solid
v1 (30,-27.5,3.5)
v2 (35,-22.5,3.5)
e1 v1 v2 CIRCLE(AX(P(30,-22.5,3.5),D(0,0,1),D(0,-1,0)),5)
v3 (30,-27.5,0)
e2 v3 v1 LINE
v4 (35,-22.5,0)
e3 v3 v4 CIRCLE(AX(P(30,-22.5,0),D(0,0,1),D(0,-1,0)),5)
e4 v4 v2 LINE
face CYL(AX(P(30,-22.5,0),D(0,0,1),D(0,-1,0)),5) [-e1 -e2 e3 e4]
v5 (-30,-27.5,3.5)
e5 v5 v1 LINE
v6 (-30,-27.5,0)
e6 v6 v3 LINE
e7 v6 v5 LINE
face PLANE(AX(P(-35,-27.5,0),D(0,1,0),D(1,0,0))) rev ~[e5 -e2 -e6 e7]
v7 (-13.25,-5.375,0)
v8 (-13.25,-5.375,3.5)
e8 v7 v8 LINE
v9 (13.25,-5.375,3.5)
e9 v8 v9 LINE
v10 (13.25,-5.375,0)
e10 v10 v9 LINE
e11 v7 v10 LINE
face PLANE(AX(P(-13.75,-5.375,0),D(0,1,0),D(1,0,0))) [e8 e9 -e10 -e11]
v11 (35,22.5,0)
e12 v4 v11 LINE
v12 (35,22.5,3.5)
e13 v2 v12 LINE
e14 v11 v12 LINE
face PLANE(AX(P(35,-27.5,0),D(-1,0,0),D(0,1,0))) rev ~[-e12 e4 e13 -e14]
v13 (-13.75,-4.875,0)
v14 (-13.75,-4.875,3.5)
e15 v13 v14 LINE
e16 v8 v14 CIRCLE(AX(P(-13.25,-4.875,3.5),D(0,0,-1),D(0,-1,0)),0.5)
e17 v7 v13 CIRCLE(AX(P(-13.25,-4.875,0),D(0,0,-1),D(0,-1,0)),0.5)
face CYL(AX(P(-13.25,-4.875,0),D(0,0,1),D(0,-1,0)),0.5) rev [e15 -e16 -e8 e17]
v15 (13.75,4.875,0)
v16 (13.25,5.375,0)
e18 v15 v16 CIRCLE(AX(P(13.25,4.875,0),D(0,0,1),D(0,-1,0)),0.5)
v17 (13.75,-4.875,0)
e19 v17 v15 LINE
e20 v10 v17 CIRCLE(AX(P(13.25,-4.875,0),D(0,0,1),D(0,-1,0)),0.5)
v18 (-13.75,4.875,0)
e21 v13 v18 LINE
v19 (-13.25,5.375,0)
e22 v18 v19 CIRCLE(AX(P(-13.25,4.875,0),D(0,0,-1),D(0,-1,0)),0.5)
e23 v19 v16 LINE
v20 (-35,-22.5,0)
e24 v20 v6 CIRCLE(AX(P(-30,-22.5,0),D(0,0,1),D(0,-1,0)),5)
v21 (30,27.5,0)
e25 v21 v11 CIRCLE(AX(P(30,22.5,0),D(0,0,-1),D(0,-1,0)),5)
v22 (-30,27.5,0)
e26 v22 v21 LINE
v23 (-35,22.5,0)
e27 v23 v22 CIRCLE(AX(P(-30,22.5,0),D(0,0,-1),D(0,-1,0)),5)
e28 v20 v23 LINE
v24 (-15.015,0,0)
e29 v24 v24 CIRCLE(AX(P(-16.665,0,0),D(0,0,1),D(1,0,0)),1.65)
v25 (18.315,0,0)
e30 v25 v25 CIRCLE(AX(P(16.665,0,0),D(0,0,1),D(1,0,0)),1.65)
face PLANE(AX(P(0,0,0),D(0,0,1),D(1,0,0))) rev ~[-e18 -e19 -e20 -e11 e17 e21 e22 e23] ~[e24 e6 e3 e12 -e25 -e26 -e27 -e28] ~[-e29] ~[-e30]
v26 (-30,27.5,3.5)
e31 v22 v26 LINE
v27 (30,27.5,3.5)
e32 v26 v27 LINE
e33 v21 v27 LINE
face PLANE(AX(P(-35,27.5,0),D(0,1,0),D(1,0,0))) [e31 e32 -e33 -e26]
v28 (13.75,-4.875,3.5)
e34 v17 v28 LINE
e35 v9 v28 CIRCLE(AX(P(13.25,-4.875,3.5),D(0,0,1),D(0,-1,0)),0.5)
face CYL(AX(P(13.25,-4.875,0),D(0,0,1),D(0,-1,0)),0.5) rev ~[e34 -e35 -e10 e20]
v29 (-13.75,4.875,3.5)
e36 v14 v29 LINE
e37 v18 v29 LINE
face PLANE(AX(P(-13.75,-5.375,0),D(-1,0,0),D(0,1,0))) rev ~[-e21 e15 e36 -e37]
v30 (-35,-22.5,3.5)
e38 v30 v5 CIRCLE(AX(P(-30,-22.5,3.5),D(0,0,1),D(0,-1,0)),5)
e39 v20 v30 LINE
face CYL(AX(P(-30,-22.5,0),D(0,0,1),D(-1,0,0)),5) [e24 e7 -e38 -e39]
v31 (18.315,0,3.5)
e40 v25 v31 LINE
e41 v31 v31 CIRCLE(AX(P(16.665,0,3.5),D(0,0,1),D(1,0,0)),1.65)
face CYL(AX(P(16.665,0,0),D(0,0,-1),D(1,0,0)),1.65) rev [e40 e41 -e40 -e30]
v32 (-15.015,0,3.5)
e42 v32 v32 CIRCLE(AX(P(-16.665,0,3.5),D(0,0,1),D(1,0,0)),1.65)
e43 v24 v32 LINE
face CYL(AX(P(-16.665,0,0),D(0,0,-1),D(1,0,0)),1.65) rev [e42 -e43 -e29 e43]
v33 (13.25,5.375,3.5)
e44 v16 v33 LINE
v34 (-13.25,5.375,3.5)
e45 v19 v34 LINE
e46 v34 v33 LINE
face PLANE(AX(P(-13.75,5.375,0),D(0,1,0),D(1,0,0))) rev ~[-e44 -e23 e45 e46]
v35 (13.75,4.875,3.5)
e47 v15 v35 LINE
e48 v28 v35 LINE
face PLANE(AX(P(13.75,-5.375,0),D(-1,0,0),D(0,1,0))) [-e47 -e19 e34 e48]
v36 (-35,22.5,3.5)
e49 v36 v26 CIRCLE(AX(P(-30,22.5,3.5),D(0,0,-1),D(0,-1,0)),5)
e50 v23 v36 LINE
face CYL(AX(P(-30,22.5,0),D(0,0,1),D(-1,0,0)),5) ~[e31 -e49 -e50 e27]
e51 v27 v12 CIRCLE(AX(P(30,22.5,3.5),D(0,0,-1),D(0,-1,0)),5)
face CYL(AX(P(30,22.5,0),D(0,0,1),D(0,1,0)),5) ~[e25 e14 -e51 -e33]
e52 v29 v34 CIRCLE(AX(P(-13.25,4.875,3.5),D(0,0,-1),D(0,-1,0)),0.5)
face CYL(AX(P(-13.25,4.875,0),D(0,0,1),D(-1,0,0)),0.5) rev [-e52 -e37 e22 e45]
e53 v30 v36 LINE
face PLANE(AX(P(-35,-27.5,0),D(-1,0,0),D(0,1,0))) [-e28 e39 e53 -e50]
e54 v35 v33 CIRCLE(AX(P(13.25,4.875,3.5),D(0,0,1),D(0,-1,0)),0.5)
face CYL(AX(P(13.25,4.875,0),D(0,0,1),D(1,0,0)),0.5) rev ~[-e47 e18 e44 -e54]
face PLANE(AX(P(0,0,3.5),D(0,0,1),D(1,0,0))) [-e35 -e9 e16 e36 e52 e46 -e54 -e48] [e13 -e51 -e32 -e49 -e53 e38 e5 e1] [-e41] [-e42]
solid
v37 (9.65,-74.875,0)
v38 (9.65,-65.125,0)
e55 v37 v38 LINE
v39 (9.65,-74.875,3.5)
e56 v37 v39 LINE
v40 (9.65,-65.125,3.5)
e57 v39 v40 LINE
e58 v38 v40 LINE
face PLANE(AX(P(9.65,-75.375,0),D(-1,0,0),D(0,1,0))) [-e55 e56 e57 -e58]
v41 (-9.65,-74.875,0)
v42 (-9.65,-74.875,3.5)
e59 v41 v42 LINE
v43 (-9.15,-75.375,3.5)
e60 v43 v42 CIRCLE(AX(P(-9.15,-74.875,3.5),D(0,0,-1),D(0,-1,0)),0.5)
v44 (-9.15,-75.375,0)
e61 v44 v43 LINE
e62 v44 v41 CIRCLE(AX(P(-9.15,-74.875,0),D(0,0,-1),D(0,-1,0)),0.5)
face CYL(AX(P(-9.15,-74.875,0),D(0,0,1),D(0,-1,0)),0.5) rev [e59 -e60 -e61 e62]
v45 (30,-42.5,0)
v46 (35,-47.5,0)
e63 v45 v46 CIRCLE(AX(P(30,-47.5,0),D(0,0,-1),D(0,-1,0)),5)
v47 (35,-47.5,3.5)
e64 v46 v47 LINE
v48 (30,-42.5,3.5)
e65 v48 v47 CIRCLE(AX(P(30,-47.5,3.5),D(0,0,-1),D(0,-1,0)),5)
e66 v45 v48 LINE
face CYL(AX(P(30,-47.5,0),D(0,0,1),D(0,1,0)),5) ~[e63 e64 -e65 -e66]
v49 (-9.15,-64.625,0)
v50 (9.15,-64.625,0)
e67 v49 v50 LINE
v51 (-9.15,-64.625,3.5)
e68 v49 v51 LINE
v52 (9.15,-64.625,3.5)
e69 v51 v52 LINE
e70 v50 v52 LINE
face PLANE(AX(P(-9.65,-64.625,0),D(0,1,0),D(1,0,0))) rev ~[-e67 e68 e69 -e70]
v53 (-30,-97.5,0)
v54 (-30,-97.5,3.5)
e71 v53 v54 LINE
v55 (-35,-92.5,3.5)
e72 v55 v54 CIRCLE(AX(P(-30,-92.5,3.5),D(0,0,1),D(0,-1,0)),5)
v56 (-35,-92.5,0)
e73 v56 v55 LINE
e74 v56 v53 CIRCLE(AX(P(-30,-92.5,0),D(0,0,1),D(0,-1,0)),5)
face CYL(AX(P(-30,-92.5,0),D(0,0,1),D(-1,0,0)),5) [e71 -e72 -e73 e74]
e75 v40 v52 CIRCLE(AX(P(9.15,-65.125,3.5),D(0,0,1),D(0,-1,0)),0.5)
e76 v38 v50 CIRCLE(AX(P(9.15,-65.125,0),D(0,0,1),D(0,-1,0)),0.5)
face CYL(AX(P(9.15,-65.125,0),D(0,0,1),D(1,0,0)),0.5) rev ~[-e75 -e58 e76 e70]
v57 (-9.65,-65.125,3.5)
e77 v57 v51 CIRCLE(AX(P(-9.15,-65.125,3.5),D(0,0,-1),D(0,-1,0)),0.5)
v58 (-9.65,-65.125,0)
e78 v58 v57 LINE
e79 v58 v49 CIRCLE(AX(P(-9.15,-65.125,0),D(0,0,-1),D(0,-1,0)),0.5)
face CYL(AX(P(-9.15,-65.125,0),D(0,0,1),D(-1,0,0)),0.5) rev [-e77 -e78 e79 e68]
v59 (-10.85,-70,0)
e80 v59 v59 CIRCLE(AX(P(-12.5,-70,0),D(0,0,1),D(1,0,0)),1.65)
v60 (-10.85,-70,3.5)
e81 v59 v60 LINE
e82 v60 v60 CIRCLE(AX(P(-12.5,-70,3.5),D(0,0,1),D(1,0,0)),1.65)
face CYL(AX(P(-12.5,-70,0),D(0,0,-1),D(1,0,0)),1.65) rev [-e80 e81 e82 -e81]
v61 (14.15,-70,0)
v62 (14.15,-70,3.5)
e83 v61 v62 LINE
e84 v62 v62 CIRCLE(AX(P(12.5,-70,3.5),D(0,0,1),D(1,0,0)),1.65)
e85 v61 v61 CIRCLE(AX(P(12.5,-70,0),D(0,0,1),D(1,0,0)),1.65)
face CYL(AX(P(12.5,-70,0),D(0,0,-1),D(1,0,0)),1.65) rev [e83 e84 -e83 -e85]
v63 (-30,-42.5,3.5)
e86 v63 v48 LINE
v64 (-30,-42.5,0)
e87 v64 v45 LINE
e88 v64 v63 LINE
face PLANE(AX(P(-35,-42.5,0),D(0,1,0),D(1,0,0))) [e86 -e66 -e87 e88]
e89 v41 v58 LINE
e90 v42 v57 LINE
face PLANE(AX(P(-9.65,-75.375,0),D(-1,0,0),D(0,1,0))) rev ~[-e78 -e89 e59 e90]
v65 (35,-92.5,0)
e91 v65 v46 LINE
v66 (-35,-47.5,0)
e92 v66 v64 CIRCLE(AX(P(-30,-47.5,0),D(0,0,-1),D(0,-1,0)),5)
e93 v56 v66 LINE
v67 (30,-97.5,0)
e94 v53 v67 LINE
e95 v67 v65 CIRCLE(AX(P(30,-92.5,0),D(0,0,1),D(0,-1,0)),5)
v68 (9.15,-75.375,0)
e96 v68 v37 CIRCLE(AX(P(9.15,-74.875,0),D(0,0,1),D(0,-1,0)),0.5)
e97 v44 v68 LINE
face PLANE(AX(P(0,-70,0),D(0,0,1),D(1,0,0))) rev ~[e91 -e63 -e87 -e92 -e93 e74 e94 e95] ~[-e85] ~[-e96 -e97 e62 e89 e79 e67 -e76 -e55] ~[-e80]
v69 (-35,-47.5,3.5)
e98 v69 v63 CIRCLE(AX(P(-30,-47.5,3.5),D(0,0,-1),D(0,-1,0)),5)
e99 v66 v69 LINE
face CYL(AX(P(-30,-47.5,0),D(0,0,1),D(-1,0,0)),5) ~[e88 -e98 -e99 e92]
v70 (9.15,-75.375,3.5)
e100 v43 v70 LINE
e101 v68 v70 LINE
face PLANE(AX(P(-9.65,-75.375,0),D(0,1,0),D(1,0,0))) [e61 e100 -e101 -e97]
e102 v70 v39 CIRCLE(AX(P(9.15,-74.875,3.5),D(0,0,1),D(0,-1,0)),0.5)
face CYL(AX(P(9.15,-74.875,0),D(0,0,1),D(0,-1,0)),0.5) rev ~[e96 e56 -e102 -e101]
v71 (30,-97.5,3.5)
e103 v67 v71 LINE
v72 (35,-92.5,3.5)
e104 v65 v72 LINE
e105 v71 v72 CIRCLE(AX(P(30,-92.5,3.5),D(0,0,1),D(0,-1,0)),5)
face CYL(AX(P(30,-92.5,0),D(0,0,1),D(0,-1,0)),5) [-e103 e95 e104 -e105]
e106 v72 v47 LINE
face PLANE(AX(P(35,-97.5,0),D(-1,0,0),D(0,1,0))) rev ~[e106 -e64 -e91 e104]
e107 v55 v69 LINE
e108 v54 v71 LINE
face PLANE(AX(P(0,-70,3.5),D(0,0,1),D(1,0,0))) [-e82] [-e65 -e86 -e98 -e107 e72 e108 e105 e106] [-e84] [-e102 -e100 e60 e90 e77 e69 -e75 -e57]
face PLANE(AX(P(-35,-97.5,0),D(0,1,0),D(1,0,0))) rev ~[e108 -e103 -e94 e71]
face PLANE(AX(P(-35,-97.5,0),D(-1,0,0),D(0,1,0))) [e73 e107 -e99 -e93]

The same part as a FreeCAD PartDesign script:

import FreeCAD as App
import Part
import Sketcher
Q = App.Units.Quantity


def edges_at(feature, points):
    """Names of the edges that pass closest to the given points."""
    edges = feature.Shape.Edges
    near = lambda p: min(range(len(edges)), key=lambda i: edges[i].distToShape(Part.Vertex(*p))[0])
    return sorted({f"Edge{near(p) + 1}" for p in points})

doc = App.newDocument("Part")
body = doc.addObject("PartDesign::Body", "Body")
body.AllowCompound = True

# Sketch on XY plane
sketch1 = doc.addObject("Sketcher::SketchObject", "Sketch")
body.addObject(sketch1)
sketch1.AttachmentSupport = (doc.XY_Plane, [""])
sketch1.MapMode = "FlatFace"
sketch1.addGeometry([
    Part.LineSegment(App.Vector(-35, 27.5, 0), App.Vector(-35, -27.5, 0)),  # 0
    Part.LineSegment(App.Vector(-35, -27.5, 0), App.Vector(35, -27.5, 0)),  # 1
    Part.LineSegment(App.Vector(35, -27.5, 0), App.Vector(35, 27.5, 0)),  # 2
    Part.LineSegment(App.Vector(35, 27.5, 0), App.Vector(-35, 27.5, 0)),  # 3
    Part.Circle(App.Vector(-16.7, 0, 0), App.Vector(0, 0, 1), 1.6),  # 4
    Part.LineSegment(App.Vector(13.8, -5.4, 0), App.Vector(-13.8, -5.4, 0)),  # 5
    Part.LineSegment(App.Vector(-13.8, -5.4, 0), App.Vector(-13.8, 5.4, 0)),  # 6
    Part.LineSegment(App.Vector(-13.8, 5.4, 0), App.Vector(13.8, 5.4, 0)),  # 7
    Part.LineSegment(App.Vector(13.8, 5.4, 0), App.Vector(13.8, -5.4, 0)),  # 8
    Part.Circle(App.Vector(16.7, 0, 0), App.Vector(0, 0, 1), 1.6),  # 9
    Part.LineSegment(App.Vector(-35, -42.5, 0), App.Vector(-35, -97.5, 0)),  # 10
    Part.LineSegment(App.Vector(-35, -97.5, 0), App.Vector(35, -97.5, 0)),  # 11
    Part.LineSegment(App.Vector(35, -97.5, 0), App.Vector(35, -42.5, 0)),  # 12
    Part.LineSegment(App.Vector(35, -42.5, 0), App.Vector(-35, -42.5, 0)),  # 13
    Part.Circle(App.Vector(-12.5, -70, 0), App.Vector(0, 0, 1), 1.6),  # 14
    Part.LineSegment(App.Vector(9.7, -75.4, 0), App.Vector(-9.7, -75.4, 0)),  # 15
    Part.LineSegment(App.Vector(-9.7, -75.4, 0), App.Vector(-9.7, -64.6, 0)),  # 16
    Part.LineSegment(App.Vector(-9.7, -64.6, 0), App.Vector(9.7, -64.6, 0)),  # 17
    Part.LineSegment(App.Vector(9.7, -64.6, 0), App.Vector(9.7, -75.4, 0)),  # 18
    Part.Circle(App.Vector(12.5, -70, 0), App.Vector(0, 0, 1), 1.6),  # 19
], False)
sketch1.addConstraint([
    Sketcher.Constraint("Coincident", 0, 2, 1, 1),
    Sketcher.Constraint("Coincident", 1, 2, 2, 1),
    Sketcher.Constraint("Coincident", 2, 2, 3, 1),
    Sketcher.Constraint("Coincident", 3, 2, 0, 1),
    Sketcher.Constraint("Coincident", 5, 2, 6, 1),
    Sketcher.Constraint("Coincident", 6, 2, 7, 1),
    Sketcher.Constraint("Coincident", 7, 2, 8, 1),
    Sketcher.Constraint("Coincident", 8, 2, 5, 1),
    Sketcher.Constraint("Coincident", 10, 2, 11, 1),
    Sketcher.Constraint("Coincident", 11, 2, 12, 1),
    Sketcher.Constraint("Coincident", 12, 2, 13, 1),
    Sketcher.Constraint("Coincident", 13, 2, 10, 1),
    Sketcher.Constraint("Coincident", 15, 2, 16, 1),
    Sketcher.Constraint("Coincident", 16, 2, 17, 1),
    Sketcher.Constraint("Coincident", 17, 2, 18, 1),
    Sketcher.Constraint("Coincident", 18, 2, 15, 1),
    Sketcher.Constraint("Vertical", 0),
    Sketcher.Constraint("Horizontal", 1),
    Sketcher.Constraint("Vertical", 2),
    Sketcher.Constraint("Horizontal", 3),
    Sketcher.Constraint("Horizontal", 5),
    Sketcher.Constraint("Vertical", 6),
    Sketcher.Constraint("Horizontal", 7),
    Sketcher.Constraint("Vertical", 8),
    Sketcher.Constraint("Vertical", 10),
    Sketcher.Constraint("Horizontal", 11),
    Sketcher.Constraint("Vertical", 12),
    Sketcher.Constraint("Horizontal", 13),
    Sketcher.Constraint("Horizontal", 15),
    Sketcher.Constraint("Vertical", 16),
    Sketcher.Constraint("Horizontal", 17),
    Sketcher.Constraint("Vertical", 18),
    Sketcher.Constraint("Equal", 4, 9),
    Sketcher.Constraint("Equal", 9, 14),
    Sketcher.Constraint("Equal", 14, 19),
    Sketcher.Constraint("Symmetric", 4, 3, 9, 3, -1, 1),
    Sketcher.Constraint("Symmetric", 0, 2, 2, 2, -1, 1),
    Sketcher.Constraint("Symmetric", 5, 2, 7, 2, -1, 1),
    Sketcher.Constraint("Symmetric", 14, 3, 19, 3, -2),
    Sketcher.Constraint("PointOnObject", 4, 3, -1),
    Sketcher.Constraint("Vertical", 3, 2, 10, 2),
    Sketcher.Constraint("Vertical", 2, 2, 11, 2),
    Sketcher.Constraint("Equal", 2, 10),
    Sketcher.Constraint("Equal", 8, 16),
    Sketcher.Constraint("Diameter", 4, Q("3.3 mm")),
    Sketcher.Constraint("DistanceX", 1, 1, 1, 2, Q("70 mm")),
    Sketcher.Constraint("DistanceY", 0, 2, 0, 1, Q("55 mm")),
    Sketcher.Constraint("DistanceX", 5, 2, 5, 1, Q("27.5 mm")),
    Sketcher.Constraint("DistanceX", 15, 2, 15, 1, Q("19.3 mm")),
    Sketcher.Constraint("DistanceY", 14, 3, -1, 1, Q("70 mm")),
    Sketcher.Constraint("DistanceX", 14, 3, 19, 3, Q("25 mm")),
    Sketcher.Constraint("DistanceY", 10, 2, 0, 2, Q("70 mm")),
    Sketcher.Constraint("DistanceY", 6, 1, 6, 2, Q("10.75 mm")),
    Sketcher.Constraint("DistanceX", 15, 2, -1, 1, Q("9.65 mm")),
    Sketcher.Constraint("DistanceX", 4, 3, 9, 3, Q("33.33 mm")),
    Sketcher.Constraint("DistanceY", 15, 2, -1, 1, Q("75.375 mm")),
])
pad1 = doc.addObject("PartDesign::Pad", "Pad")
body.addObject(pad1)
pad1.Profile = sketch1
pad1.Length = 3.5
doc.recompute()

fillet = doc.addObject("PartDesign::Fillet", "Fillet")
body.addObject(fillet)
fillet.Base = (pad1, edges_at(pad1, [
    (35, 27.5, 1.75),
    (35, -27.5, 1.75),
    (35, -42.5, 1.75),
    (35, -97.5, 1.75),
    (-35, -97.5, 1.75),
    (-35, -42.5, 1.75),
    (-35, -27.5, 1.75),
    (-35, 27.5, 1.75),
]))
fillet.Radius = 5
doc.recompute()

fillet2 = doc.addObject("PartDesign::Fillet", "Fillet001")
body.addObject(fillet2)
fillet2.Base = (fillet, edges_at(fillet, [
    (13.75, -5.375, 1.75),
    (13.75, 5.375, 1.75),
    (-13.75, 5.375, 1.75),
    (-13.75, -5.375, 1.75),
    (-9.65, -64.625, 1.75),
    (9.65, -64.625, 1.75),
    (9.65, -75.375, 1.75),
    (-9.65, -75.375, 1.75),
]))
fillet2.Radius = 0.5

doc.recompute()
